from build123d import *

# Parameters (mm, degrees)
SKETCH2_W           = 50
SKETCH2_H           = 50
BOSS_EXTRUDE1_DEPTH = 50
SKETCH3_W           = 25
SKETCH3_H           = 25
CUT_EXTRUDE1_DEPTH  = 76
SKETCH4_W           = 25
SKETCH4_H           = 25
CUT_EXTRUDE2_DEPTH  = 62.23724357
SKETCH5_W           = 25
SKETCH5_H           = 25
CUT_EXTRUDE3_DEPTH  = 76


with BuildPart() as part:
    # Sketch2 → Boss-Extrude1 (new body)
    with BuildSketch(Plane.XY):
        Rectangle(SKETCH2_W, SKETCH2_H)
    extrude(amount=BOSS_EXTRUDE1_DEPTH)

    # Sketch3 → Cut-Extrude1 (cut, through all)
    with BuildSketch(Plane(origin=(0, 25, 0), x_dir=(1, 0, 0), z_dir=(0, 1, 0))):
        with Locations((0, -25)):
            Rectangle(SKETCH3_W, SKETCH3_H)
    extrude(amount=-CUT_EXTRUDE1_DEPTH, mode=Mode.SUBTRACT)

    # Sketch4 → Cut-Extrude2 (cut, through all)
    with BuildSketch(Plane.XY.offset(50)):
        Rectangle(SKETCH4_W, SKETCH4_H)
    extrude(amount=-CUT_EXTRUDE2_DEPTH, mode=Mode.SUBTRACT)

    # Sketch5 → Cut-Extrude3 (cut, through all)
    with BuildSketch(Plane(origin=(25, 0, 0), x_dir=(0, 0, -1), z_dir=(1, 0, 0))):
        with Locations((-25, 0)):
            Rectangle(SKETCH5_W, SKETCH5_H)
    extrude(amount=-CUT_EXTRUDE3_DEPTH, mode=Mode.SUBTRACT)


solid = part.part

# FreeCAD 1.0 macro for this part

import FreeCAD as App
import Part
import Sketcher
from FreeCAD import Vector


def add_polygon(sketch, points):
    """Adds a closed chain of lines whose ends are joined by coincident constraints."""
    first, n = sketch.GeometryCount, len(points)
    for a, b in zip(points, points[1:] + points[:1]):
        sketch.addGeometry(Part.LineSegment(App.Vector(*a, 0), App.Vector(*b, 0)), False)
    for i in range(n):
        sketch.addConstraint(Sketcher.Constraint("Coincident", first + i, 2, first + (i + 1) % n, 1))

doc = App.newDocument("Part")
body = doc.addObject("PartDesign::Body", "Body")

# Sketch on XY plane
sketch1 = body.newObject("Sketcher::SketchObject", "Sketch")
sketch1.AttachmentSupport = (doc.getObject("XY_Plane"), [""])
sketch1.MapMode = "FlatFace"
add_polygon(sketch1, [(-25, 25), (-25, -25), (25, -25), (25, 25)])  # lines 0-3
sketch1.addConstraint(Sketcher.Constraint("Vertical", 0))
sketch1.addConstraint(Sketcher.Constraint("Horizontal", 1))
sketch1.addConstraint(Sketcher.Constraint("Vertical", 2))
sketch1.addConstraint(Sketcher.Constraint("Horizontal", 3))
sketch1.addConstraint(Sketcher.Constraint("Symmetric", 0, 2, 2, 2, -1, 1))
sketch1.addConstraint(Sketcher.Constraint("Equal", 3, 0))
sketch1.addConstraint(Sketcher.Constraint("DistanceX", 1, 1, 1, 2, 50.0))
pad1 = body.newObject("PartDesign::Pad", "Pad")
pad1.Profile = sketch1
pad1.Length = 50

# Sketch on XZ plane
sketch2 = body.newObject("Sketcher::SketchObject", "Sketch001")
sketch2.AttachmentSupport = (doc.getObject("XZ_Plane"), [""])
sketch2.MapMode = "FlatFace"
sketch2.AttachmentOffset = App.Placement(Vector(0, 0, -25), App.Rotation())
add_polygon(sketch2, [(-12, 12), (-12, 38), (12, 38), (12, 12)])  # lines 0-3
sketch2.addConstraint(Sketcher.Constraint("Vertical", 0))
sketch2.addConstraint(Sketcher.Constraint("Horizontal", 1))
sketch2.addConstraint(Sketcher.Constraint("Vertical", 2))
sketch2.addConstraint(Sketcher.Constraint("Horizontal", 3))
sketch2.addConstraint(Sketcher.Constraint("Equal", 3, 0))
sketch2.addConstraint(Sketcher.Constraint("DistanceX", 1, 1, 1, 2, 25.0))
sketch2.addConstraint(Sketcher.Constraint("DistanceX", 0, 2, -1, 1, 12.5))
sketch2.addConstraint(Sketcher.Constraint("DistanceY", -1, 1, 0, 2, 37.5))
pocket1 = body.newObject("PartDesign::Pocket", "Pocket")
pocket1.Profile = sketch2
pocket1.Type = "ThroughAll"
pocket1.Reversed = True

# Sketch on XY plane
sketch3 = body.newObject("Sketcher::SketchObject", "Sketch002")
sketch3.AttachmentSupport = (doc.getObject("XY_Plane"), [""])
sketch3.MapMode = "FlatFace"
sketch3.AttachmentOffset = App.Placement(Vector(0, 0, 50), App.Rotation())
add_polygon(sketch3, [(-12, 12), (-12, -12), (12, -12), (12, 12)])  # lines 0-3
sketch3.addConstraint(Sketcher.Constraint("Vertical", 0))
sketch3.addConstraint(Sketcher.Constraint("Horizontal", 1))
sketch3.addConstraint(Sketcher.Constraint("Vertical", 2))
sketch3.addConstraint(Sketcher.Constraint("Horizontal", 3))
sketch3.addConstraint(Sketcher.Constraint("Symmetric", 0, 2, 2, 2, -1, 1))
sketch3.addConstraint(Sketcher.Constraint("Equal", 3, 0))
sketch3.addConstraint(Sketcher.Constraint("DistanceX", 1, 1, 1, 2, 25.0))
pocket2 = body.newObject("PartDesign::Pocket", "Pocket001")
pocket2.Profile = sketch3
pocket2.Type = "ThroughAll"

# Sketch on YZ plane
sketch4 = body.newObject("Sketcher::SketchObject", "Sketch003")
sketch4.AttachmentSupport = (doc.getObject("YZ_Plane"), [""])
sketch4.MapMode = "FlatFace"
sketch4.AttachmentOffset = App.Placement(Vector(0, 0, 25), App.Rotation())
add_polygon(sketch4, [(12, 38), (-12, 38), (-12, 12), (12, 12)])  # lines 0-3
sketch4.addConstraint(Sketcher.Constraint("Horizontal", 0))
sketch4.addConstraint(Sketcher.Constraint("Vertical", 1))
sketch4.addConstraint(Sketcher.Constraint("Horizontal", 2))
sketch4.addConstraint(Sketcher.Constraint("Vertical", 3))
sketch4.addConstraint(Sketcher.Constraint("Equal", 2, 1))
sketch4.addConstraint(Sketcher.Constraint("DistanceX", 0, 2, 0, 1, 25.0))
sketch4.addConstraint(Sketcher.Constraint("DistanceX", 0, 2, -1, 1, 12.5))
sketch4.addConstraint(Sketcher.Constraint("DistanceY", -1, 1, 0, 2, 37.5))
pocket3 = body.newObject("PartDesign::Pocket", "Pocket002")
pocket3.Profile = sketch4
pocket3.Type = "ThroughAll"

doc.recompute()
